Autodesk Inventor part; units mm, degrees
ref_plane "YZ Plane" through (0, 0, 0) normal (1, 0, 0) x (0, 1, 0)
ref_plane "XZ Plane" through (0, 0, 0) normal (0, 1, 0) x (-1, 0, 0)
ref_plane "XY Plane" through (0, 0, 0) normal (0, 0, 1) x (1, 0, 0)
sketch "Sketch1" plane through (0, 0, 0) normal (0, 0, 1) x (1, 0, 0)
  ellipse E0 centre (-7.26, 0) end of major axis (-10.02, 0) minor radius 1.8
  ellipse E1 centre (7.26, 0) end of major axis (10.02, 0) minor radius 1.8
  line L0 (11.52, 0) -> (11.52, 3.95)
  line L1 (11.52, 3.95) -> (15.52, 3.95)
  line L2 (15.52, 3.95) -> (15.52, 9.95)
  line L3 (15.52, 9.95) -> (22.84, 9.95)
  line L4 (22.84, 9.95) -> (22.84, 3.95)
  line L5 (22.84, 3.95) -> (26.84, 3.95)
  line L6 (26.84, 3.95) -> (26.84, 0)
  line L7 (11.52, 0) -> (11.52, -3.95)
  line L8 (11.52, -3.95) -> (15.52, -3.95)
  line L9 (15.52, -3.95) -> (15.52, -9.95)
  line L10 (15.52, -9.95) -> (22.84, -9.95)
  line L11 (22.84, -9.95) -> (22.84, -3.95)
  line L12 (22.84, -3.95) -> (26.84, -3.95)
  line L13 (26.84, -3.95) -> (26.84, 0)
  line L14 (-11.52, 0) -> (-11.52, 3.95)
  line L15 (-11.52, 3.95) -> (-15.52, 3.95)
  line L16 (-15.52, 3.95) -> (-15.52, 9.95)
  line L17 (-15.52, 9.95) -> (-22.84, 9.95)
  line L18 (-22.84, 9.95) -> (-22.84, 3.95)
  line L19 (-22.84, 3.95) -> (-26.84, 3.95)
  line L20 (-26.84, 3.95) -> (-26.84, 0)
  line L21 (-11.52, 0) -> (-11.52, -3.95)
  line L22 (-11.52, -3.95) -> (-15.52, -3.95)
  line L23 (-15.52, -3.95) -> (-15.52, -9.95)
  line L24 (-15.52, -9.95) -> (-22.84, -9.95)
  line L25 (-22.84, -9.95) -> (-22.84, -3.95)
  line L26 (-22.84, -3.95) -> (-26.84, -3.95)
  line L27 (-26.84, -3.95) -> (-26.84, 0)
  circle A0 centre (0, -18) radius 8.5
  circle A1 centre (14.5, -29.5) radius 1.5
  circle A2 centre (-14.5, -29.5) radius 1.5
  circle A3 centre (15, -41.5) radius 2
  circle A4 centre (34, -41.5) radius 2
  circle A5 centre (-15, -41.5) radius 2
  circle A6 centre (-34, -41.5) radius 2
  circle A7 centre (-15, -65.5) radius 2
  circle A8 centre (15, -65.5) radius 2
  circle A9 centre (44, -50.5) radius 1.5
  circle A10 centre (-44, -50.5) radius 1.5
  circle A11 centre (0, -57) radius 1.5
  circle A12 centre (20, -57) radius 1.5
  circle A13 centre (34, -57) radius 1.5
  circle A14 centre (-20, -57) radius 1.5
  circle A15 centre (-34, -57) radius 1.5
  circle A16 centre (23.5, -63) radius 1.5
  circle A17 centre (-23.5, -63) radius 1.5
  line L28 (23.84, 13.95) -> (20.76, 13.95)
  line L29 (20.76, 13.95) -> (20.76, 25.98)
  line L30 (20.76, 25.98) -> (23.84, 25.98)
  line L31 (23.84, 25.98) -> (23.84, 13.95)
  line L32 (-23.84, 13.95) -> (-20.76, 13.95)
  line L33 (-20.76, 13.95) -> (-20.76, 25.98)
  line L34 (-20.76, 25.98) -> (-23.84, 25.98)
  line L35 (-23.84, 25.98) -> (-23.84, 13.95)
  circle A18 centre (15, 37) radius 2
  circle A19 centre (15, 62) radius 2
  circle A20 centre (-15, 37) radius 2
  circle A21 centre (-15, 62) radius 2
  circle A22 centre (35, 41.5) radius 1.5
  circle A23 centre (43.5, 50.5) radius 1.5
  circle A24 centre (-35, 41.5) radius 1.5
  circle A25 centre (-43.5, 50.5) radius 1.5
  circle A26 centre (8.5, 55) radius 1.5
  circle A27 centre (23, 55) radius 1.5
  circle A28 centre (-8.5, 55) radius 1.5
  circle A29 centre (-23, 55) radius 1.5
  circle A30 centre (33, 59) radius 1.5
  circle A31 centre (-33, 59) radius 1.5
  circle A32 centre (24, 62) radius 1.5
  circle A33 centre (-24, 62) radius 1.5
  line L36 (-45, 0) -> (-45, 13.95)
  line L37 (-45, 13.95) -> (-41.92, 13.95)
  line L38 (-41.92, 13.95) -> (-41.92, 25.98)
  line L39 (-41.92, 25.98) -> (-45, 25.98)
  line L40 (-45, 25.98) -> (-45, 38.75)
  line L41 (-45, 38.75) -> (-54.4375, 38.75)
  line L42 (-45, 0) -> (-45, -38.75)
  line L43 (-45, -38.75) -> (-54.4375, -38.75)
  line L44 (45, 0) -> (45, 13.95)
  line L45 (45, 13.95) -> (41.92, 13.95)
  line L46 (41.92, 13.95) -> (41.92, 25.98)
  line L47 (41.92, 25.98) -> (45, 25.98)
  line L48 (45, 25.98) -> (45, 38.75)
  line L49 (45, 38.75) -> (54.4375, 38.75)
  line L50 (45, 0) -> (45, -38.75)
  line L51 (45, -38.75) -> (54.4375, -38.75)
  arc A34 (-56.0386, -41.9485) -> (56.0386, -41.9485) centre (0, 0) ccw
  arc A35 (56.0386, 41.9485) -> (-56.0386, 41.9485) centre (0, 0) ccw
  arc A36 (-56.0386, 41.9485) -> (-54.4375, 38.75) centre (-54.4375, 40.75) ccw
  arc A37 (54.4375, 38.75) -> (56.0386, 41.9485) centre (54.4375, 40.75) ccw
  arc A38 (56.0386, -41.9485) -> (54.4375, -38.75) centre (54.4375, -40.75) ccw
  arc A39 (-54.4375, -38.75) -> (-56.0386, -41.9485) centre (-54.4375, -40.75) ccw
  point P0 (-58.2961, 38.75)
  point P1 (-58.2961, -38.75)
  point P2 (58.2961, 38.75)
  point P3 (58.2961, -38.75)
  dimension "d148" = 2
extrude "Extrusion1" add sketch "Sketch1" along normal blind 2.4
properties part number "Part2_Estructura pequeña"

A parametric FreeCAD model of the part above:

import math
import FreeCAD as App
import Part
import Sketcher
from FreeCAD import Vector


def add_polygon(sketch, points):
    """Adds a closed chain of lines whose ends are joined by coincident constraints."""
    first, n = sketch.GeometryCount, len(points)
    for a, b in zip(points, points[1:] + points[:1]):
        sketch.addGeometry(Part.LineSegment(App.Vector(*a, 0), App.Vector(*b, 0)), False)
    for i in range(n):
        sketch.addConstraint(Sketcher.Constraint("Coincident", first + i, 2, first + (i + 1) % n, 1))

doc = App.newDocument("Part")
body = doc.addObject("PartDesign::Body", "Body")

# Sketch on XY plane
sketch1 = body.newObject("Sketcher::SketchObject", "Sketch")
sketch1.AttachmentSupport = (doc.getObject("XY_Plane"), [""])
sketch1.MapMode = "FlatFace"
sketch1.addGeometry(Part.LineSegment(Vector(-45, 13.95, 0), Vector(-45, -38.75, 0)), False)  # 0
sketch1.addGeometry(Part.LineSegment(Vector(-45, -38.75, 0), Vector(-54.4375, -38.75, 0)), False)  # 1
sketch1.addGeometry(Part.ArcOfCircle(Part.Circle(Vector(-54.4375, -40.75, 0), Vector(0, 0, 1), 2), math.radians(90), math.radians(216.816612)), False)  # 2
sketch1.addGeometry(Part.ArcOfCircle(Part.Circle(Vector(0, 0, 0), Vector(0, 0, 1), 70.00001), math.radians(-143.182782), math.radians(-36.817218)), False)  # 3
sketch1.addGeometry(Part.ArcOfCircle(Part.Circle(Vector(54.4375, -40.75, 0), Vector(0, 0, 1), 1.999981), math.radians(-36.816612), math.radians(90)), False)  # 4
sketch1.addGeometry(Part.LineSegment(Vector(54.4375, -38.75, 0), Vector(45, -38.75, 0)), False)  # 5
sketch1.addGeometry(Part.LineSegment(Vector(45, -38.75, 0), Vector(45, 13.95, 0)), False)  # 6
sketch1.addGeometry(Part.LineSegment(Vector(45, 13.95, 0), Vector(41.92, 13.95, 0)), False)  # 7
sketch1.addGeometry(Part.LineSegment(Vector(41.92, 13.95, 0), Vector(41.92, 25.98, 0)), False)  # 8
sketch1.addGeometry(Part.LineSegment(Vector(41.92, 25.98, 0), Vector(45, 25.98, 0)), False)  # 9
sketch1.addGeometry(Part.LineSegment(Vector(45, 25.98, 0), Vector(45, 38.75, 0)), False)  # 10
sketch1.addGeometry(Part.LineSegment(Vector(45, 38.75, 0), Vector(54.4375, 38.75, 0)), False)  # 11
sketch1.addGeometry(Part.ArcOfCircle(Part.Circle(Vector(54.4375, 40.75, 0), Vector(0, 0, 1), 2), math.radians(-90), math.radians(36.816612)), False)  # 12
sketch1.addGeometry(Part.ArcOfCircle(Part.Circle(Vector(0, 0, 0), Vector(0, 0, 1), 70.00001), math.radians(36.817218), math.radians(143.182782)), False)  # 13
sketch1.addGeometry(Part.ArcOfCircle(Part.Circle(Vector(-54.4375, 40.75, 0), Vector(0, 0, 1), 1.999981), math.radians(143.183388), math.radians(270)), False)  # 14
sketch1.addGeometry(Part.LineSegment(Vector(-54.4375, 38.75, 0), Vector(-45, 38.75, 0)), False)  # 15
sketch1.addGeometry(Part.LineSegment(Vector(-45, 38.75, 0), Vector(-45, 25.98, 0)), False)  # 16
sketch1.addGeometry(Part.LineSegment(Vector(-45, 25.98, 0), Vector(-41.92, 25.98, 0)), False)  # 17
sketch1.addGeometry(Part.LineSegment(Vector(-41.92, 25.98, 0), Vector(-41.92, 13.95, 0)), False)  # 18
sketch1.addGeometry(Part.LineSegment(Vector(-41.92, 13.95, 0), Vector(-45, 13.95, 0)), False)  # 19
sketch1.addGeometry(Part.Circle(Vector(-34, -57, 0), Vector(0, 0, 1), 1.5), False)  # 20
sketch1.addGeometry(Part.Circle(Vector(-44, -50.5, 0), Vector(0, 0, 1), 1.5), False)  # 21
sketch1.addGeometry(Part.Circle(Vector(-34, -41.5, 0), Vector(0, 0, 1), 2), False)  # 22
sketch1.addGeometry(Part.Circle(Vector(-23.5, -63, 0), Vector(0, 0, 1), 1.5), False)  # 23
sketch1.addGeometry(Part.Circle(Vector(-15, -65.5, 0), Vector(0, 0, 1), 2), False)  # 24
sketch1.addGeometry(Part.Circle(Vector(-20, -57, 0), Vector(0, 0, 1), 1.5), False)  # 25
sketch1.addGeometry(Part.Circle(Vector(-15, -41.5, 0), Vector(0, 0, 1), 2), False)  # 26
sketch1.addGeometry(Part.Circle(Vector(-14.5, -29.5, 0), Vector(0, 0, 1), 1.5), False)  # 27
sketch1.addGeometry(Part.Circle(Vector(0, -57, 0), Vector(0, 0, 1), 1.5), False)  # 28
sketch1.addGeometry(Part.Circle(Vector(15, -65.5, 0), Vector(0, 0, 1), 2), False)  # 29
sketch1.addGeometry(Part.Circle(Vector(23.5, -63, 0), Vector(0, 0, 1), 1.5), False)  # 30
sketch1.addGeometry(Part.Circle(Vector(20, -57, 0), Vector(0, 0, 1), 1.5), False)  # 31
sketch1.addGeometry(Part.Circle(Vector(15, -41.5, 0), Vector(0, 0, 1), 2), False)  # 32
sketch1.addGeometry(Part.Circle(Vector(34, -57, 0), Vector(0, 0, 1), 1.5), False)  # 33
sketch1.addGeometry(Part.Circle(Vector(34, -41.5, 0), Vector(0, 0, 1), 2), False)  # 34
sketch1.addGeometry(Part.Circle(Vector(44, -50.5, 0), Vector(0, 0, 1), 1.5), False)  # 35
sketch1.addGeometry(Part.Circle(Vector(0, -18, 0), Vector(0, 0, 1), 8.5), False)  # 36
sketch1.addGeometry(Part.Circle(Vector(14.5, -29.5, 0), Vector(0, 0, 1), 1.5), False)  # 37
add_polygon(sketch1, [(-11.52, 3.95), (-11.52, -3.95), (-15.52, -3.95), (-15.52, -9.95), (-22.84, -9.95), (-22.84, -3.95), (-26.84, -3.95), (-26.84, 3.95), (-22.84, 3.95), (-22.84, 9.95), (-15.52, 9.95), (-15.52, 3.95)])  # lines 38-49
sketch1.addGeometry(Part.Ellipse(Vector(-10.02, 0, 0), Vector(-7.26, -1.8, 0), Vector(-7.26, 0, 0)), False)  # 50
add_polygon(sketch1, [(-20.76, 13.95), (-23.84, 13.95), (-23.84, 25.98), (-20.76, 25.98)])  # lines 51-54
sketch1.addGeometry(Part.Circle(Vector(-43.5, 50.5, 0), Vector(0, 0, 1), 1.5), False)  # 55
sketch1.addGeometry(Part.Circle(Vector(-35, 41.5, 0), Vector(0, 0, 1), 1.5), False)  # 56
sketch1.addGeometry(Part.Circle(Vector(-33, 59, 0), Vector(0, 0, 1), 1.5), False)  # 57
sketch1.addGeometry(Part.Circle(Vector(-15, 37, 0), Vector(0, 0, 1), 2), False)  # 58
sketch1.addGeometry(Part.Circle(Vector(-23, 55, 0), Vector(0, 0, 1), 1.5), False)  # 59
sketch1.addGeometry(Part.Circle(Vector(-24, 62, 0), Vector(0, 0, 1), 1.5), False)  # 60
sketch1.addGeometry(Part.Circle(Vector(-15, 62, 0), Vector(0, 0, 1), 2), False)  # 61
sketch1.addGeometry(Part.Circle(Vector(-8.5, 55, 0), Vector(0, 0, 1), 1.5), False)  # 62
sketch1.addGeometry(Part.Ellipse(Vector(10.02, 0, 0), Vector(7.26, 1.8, 0), Vector(7.26, 0, 0)), False)  # 63
add_polygon(sketch1, [(11.52, -3.95), (11.52, 3.95), (15.52, 3.95), (15.52, 9.95), (22.84, 9.95), (22.84, 3.95), (26.84, 3.95), (26.84, -3.95), (22.84, -3.95), (22.84, -9.95), (15.52, -9.95), (15.52, -3.95)])  # lines 64-75
add_polygon(sketch1, [(23.84, 25.98), (23.84, 13.95), (20.76, 13.95), (20.76, 25.98)])  # lines 76-79
sketch1.addGeometry(Part.Circle(Vector(15, 37, 0), Vector(0, 0, 1), 2), False)  # 80
sketch1.addGeometry(Part.Circle(Vector(8.5, 55, 0), Vector(0, 0, 1), 1.5), False)  # 81
sketch1.addGeometry(Part.Circle(Vector(23, 55, 0), Vector(0, 0, 1), 1.5), False)  # 82
sketch1.addGeometry(Part.Circle(Vector(15, 62, 0), Vector(0, 0, 1), 2), False)  # 83
sketch1.addGeometry(Part.Circle(Vector(24, 62, 0), Vector(0, 0, 1), 1.5), False)  # 84
sketch1.addGeometry(Part.Circle(Vector(35, 41.5, 0), Vector(0, 0, 1), 1.5), False)  # 85
sketch1.addGeometry(Part.Circle(Vector(43.5, 50.5, 0), Vector(0, 0, 1), 1.5), False)  # 86
sketch1.addGeometry(Part.Circle(Vector(33, 59, 0), Vector(0, 0, 1), 1.5), False)  # 87
sketch1.addConstraint(Sketcher.Constraint("Block", 50))
sketch1.addConstraint(Sketcher.Constraint("Block", 63))
sketch1.addConstraint(Sketcher.Constraint("Coincident", 0, 2, 1, 1))
sketch1.addConstraint(Sketcher.Constraint("Tangent", 1, 2, 2, 1))
sketch1.addConstraint(Sketcher.Constraint("Tangent", 2, 2, 3, 1))
sketch1.addConstraint(Sketcher.Constraint("Tangent", 3, 2, 4, 1))
sketch1.addConstraint(Sketcher.Constraint("Tangent", 4, 2, 5, 1))
sketch1.addConstraint(Sketcher.Constraint("Coincident", 5, 2, 6, 1))
sketch1.addConstraint(Sketcher.Constraint("Coincident", 6, 2, 7, 1))
sketch1.addConstraint(Sketcher.Constraint("Coincident", 7, 2, 8, 1))
sketch1.addConstraint(Sketcher.Constraint("Coincident", 8, 2, 9, 1))
sketch1.addConstraint(Sketcher.Constraint("Coincident", 9, 2, 10, 1))
sketch1.addConstraint(Sketcher.Constraint("Coincident", 10, 2, 11, 1))
sketch1.addConstraint(Sketcher.Constraint("Tangent", 11, 2, 12, 1))
sketch1.addConstraint(Sketcher.Constraint("Tangent", 12, 2, 13, 1))
sketch1.addConstraint(Sketcher.Constraint("Tangent", 13, 2, 14, 1))
sketch1.addConstraint(Sketcher.Constraint("Tangent", 14, 2, 15, 1))
sketch1.addConstraint(Sketcher.Constraint("Coincident", 15, 2, 16, 1))
sketch1.addConstraint(Sketcher.Constraint("Coincident", 16, 2, 17, 1))
sketch1.addConstraint(Sketcher.Constraint("Coincident", 17, 2, 18, 1))
sketch1.addConstraint(Sketcher.Constraint("Coincident", 18, 2, 19, 1))
sketch1.addConstraint(Sketcher.Constraint("Coincident", 19, 2, 0, 1))
sketch1.addConstraint(Sketcher.Constraint("Vertical", 0))
sketch1.addConstraint(Sketcher.Constraint("Horizontal", 1))
sketch1.addConstraint(Sketcher.Constraint("Horizontal", 5))
sketch1.addConstraint(Sketcher.Constraint("Vertical", 6))
sketch1.addConstraint(Sketcher.Constraint("Horizontal", 7))
sketch1.addConstraint(Sketcher.Constraint("Vertical", 8))
sketch1.addConstraint(Sketcher.Constraint("Horizontal", 9))
sketch1.addConstraint(Sketcher.Constraint("Vertical", 10))
sketch1.addConstraint(Sketcher.Constraint("Horizontal", 11))
sketch1.addConstraint(Sketcher.Constraint("Horizontal", 15))
sketch1.addConstraint(Sketcher.Constraint("Vertical", 16))
sketch1.addConstraint(Sketcher.Constraint("Horizontal", 17))
sketch1.addConstraint(Sketcher.Constraint("Vertical", 18))
sketch1.addConstraint(Sketcher.Constraint("Horizontal", 19))
sketch1.addConstraint(Sketcher.Constraint("Vertical", 38))
sketch1.addConstraint(Sketcher.Constraint("Horizontal", 39))
sketch1.addConstraint(Sketcher.Constraint("Vertical", 40))
sketch1.addConstraint(Sketcher.Constraint("Horizontal", 41))
sketch1.addConstraint(Sketcher.Constraint("Vertical", 42))
sketch1.addConstraint(Sketcher.Constraint("Horizontal", 43))
sketch1.addConstraint(Sketcher.Constraint("Vertical", 44))
sketch1.addConstraint(Sketcher.Constraint("Horizontal", 45))
sketch1.addConstraint(Sketcher.Constraint("Vertical", 46))
sketch1.addConstraint(Sketcher.Constraint("Horizontal", 47))
sketch1.addConstraint(Sketcher.Constraint("Vertical", 48))
sketch1.addConstraint(Sketcher.Constraint("Horizontal", 49))
sketch1.addConstraint(Sketcher.Constraint("Horizontal", 51))
sketch1.addConstraint(Sketcher.Constraint("Vertical", 52))
sketch1.addConstraint(Sketcher.Constraint("Horizontal", 53))
sketch1.addConstraint(Sketcher.Constraint("Vertical", 54))
sketch1.addConstraint(Sketcher.Constraint("Vertical", 64))
sketch1.addConstraint(Sketcher.Constraint("Horizontal", 65))
sketch1.addConstraint(Sketcher.Constraint("Vertical", 66))
sketch1.addConstraint(Sketcher.Constraint("Horizontal", 67))
sketch1.addConstraint(Sketcher.Constraint("Vertical", 68))
sketch1.addConstraint(Sketcher.Constraint("Horizontal", 69))
sketch1.addConstraint(Sketcher.Constraint("Vertical", 70))
sketch1.addConstraint(Sketcher.Constraint("Horizontal", 71))
sketch1.addConstraint(Sketcher.Constraint("Vertical", 72))
sketch1.addConstraint(Sketcher.Constraint("Horizontal", 73))
sketch1.addConstraint(Sketcher.Constraint("Vertical", 74))
sketch1.addConstraint(Sketcher.Constraint("Horizontal", 75))
sketch1.addConstraint(Sketcher.Constraint("Vertical", 76))
sketch1.addConstraint(Sketcher.Constraint("Horizontal", 77))
sketch1.addConstraint(Sketcher.Constraint("Vertical", 78))
sketch1.addConstraint(Sketcher.Constraint("Horizontal", 79))
sketch1.addConstraint(Sketcher.Constraint("Coincident", 3, 3, -1, 1))
sketch1.addConstraint(Sketcher.Constraint("Coincident", 13, 3, -1, 1))
sketch1.addConstraint(Sketcher.Constraint("Equal", 2, 4))
sketch1.addConstraint(Sketcher.Constraint("Equal", 4, 12))
sketch1.addConstraint(Sketcher.Constraint("Equal", 3, 13))
sketch1.addConstraint(Sketcher.Constraint("Equal", 12, 14))
sketch1.addConstraint(Sketcher.Constraint("Equal", 20, 21))
sketch1.addConstraint(Sketcher.Constraint("Equal", 14, 22))
sketch1.addConstraint(Sketcher.Constraint("Equal", 21, 23))
sketch1.addConstraint(Sketcher.Constraint("Equal", 22, 24))
sketch1.addConstraint(Sketcher.Constraint("Equal", 23, 25))
sketch1.addConstraint(Sketcher.Constraint("Equal", 24, 26))
sketch1.addConstraint(Sketcher.Constraint("Equal", 25, 27))
sketch1.addConstraint(Sketcher.Constraint("Equal", 27, 28))
sketch1.addConstraint(Sketcher.Constraint("Equal", 26, 29))
sketch1.addConstraint(Sketcher.Constraint("Equal", 28, 30))
sketch1.addConstraint(Sketcher.Constraint("Equal", 30, 31))
sketch1.addConstraint(Sketcher.Constraint("Equal", 29, 32))
sketch1.addConstraint(Sketcher.Constraint("Equal", 31, 33))
sketch1.addConstraint(Sketcher.Constraint("Equal", 32, 34))
sketch1.addConstraint(Sketcher.Constraint("Equal", 33, 35))
sketch1.addConstraint(Sketcher.Constraint("Equal", 35, 37))
sketch1.addConstraint(Sketcher.Constraint("Equal", 37, 55))
sketch1.addConstraint(Sketcher.Constraint("Equal", 55, 56))
sketch1.addConstraint(Sketcher.Constraint("Equal", 56, 57))
sketch1.addConstraint(Sketcher.Constraint("Equal", 34, 58))
sketch1.addConstraint(Sketcher.Constraint("Equal", 57, 59))
sketch1.addConstraint(Sketcher.Constraint("Equal", 59, 60))
sketch1.addConstraint(Sketcher.Constraint("Equal", 58, 61))
sketch1.addConstraint(Sketcher.Constraint("Equal", 60, 62))
sketch1.addConstraint(Sketcher.Constraint("Equal", 61, 80))
sketch1.addConstraint(Sketcher.Constraint("Equal", 62, 81))
sketch1.addConstraint(Sketcher.Constraint("Equal", 81, 82))
sketch1.addConstraint(Sketcher.Constraint("Equal", 80, 83))
sketch1.addConstraint(Sketcher.Constraint("Equal", 82, 84))
sketch1.addConstraint(Sketcher.Constraint("Equal", 84, 85))
sketch1.addConstraint(Sketcher.Constraint("Equal", 85, 86))
sketch1.addConstraint(Sketcher.Constraint("Equal", 86, 87))
sketch1.addConstraint(Sketcher.Constraint("Symmetric", 0, 2, 10, 2, -1, 1))
sketch1.addConstraint(Sketcher.Constraint("Symmetric", 5, 2, 15, 2, -1, 1))
sketch1.addConstraint(Sketcher.Constraint("Symmetric", 38, 2, 64, 2, -1, 1))
sketch1.addConstraint(Sketcher.Constraint("Symmetric", 40, 2, 66, 2, -1, 1))
sketch1.addConstraint(Sketcher.Constraint("Symmetric", 42, 2, 68, 2, -1, 1))
sketch1.addConstraint(Sketcher.Constraint("Symmetric", 44, 2, 70, 2, -1, 1))
sketch1.addConstraint(Sketcher.Constraint("Symmetric", 46, 2, 72, 2, -1, 1))
sketch1.addConstraint(Sketcher.Constraint("Symmetric", 48, 2, 74, 2, -1, 1))
sketch1.addConstraint(Sketcher.Constraint("Symmetric", 24, 3, 29, 3, -2))
sketch1.addConstraint(Sketcher.Constraint("Symmetric", 23, 3, 30, 3, -2))
sketch1.addConstraint(Sketcher.Constraint("Symmetric", 25, 3, 31, 3, -2))
sketch1.addConstraint(Sketcher.Constraint("Symmetric", 26, 3, 32, 3, -2))
sketch1.addConstraint(Sketcher.Constraint("Symmetric", 20, 3, 33, 3, -2))
sketch1.addConstraint(Sketcher.Constraint("Symmetric", 22, 3, 34, 3, -2))
sketch1.addConstraint(Sketcher.Constraint("Symmetric", 21, 3, 35, 3, -2))
sketch1.addConstraint(Sketcher.Constraint("Symmetric", 27, 3, 37, 3, -2))
sketch1.addConstraint(Sketcher.Constraint("Symmetric", 58, 3, 80, 3, -2))
sketch1.addConstraint(Sketcher.Constraint("Symmetric", 62, 3, 81, 3, -2))
sketch1.addConstraint(Sketcher.Constraint("Symmetric", 59, 3, 82, 3, -2))
sketch1.addConstraint(Sketcher.Constraint("Symmetric", 61, 3, 83, 3, -2))
sketch1.addConstraint(Sketcher.Constraint("Symmetric", 60, 3, 84, 3, -2))
sketch1.addConstraint(Sketcher.Constraint("Symmetric", 56, 3, 85, 3, -2))
sketch1.addConstraint(Sketcher.Constraint("Symmetric", 55, 3, 86, 3, -2))
sketch1.addConstraint(Sketcher.Constraint("Symmetric", 57, 3, 87, 3, -2))
sketch1.addConstraint(Sketcher.Constraint("Symmetric", 0, 2, 5, 2, -2))
sketch1.addConstraint(Sketcher.Constraint("Symmetric", 8, 2, 17, 2, -2))
sketch1.addConstraint(Sketcher.Constraint("Symmetric", 48, 2, 65, 2, -2))
sketch1.addConstraint(Sketcher.Constraint("Symmetric", 46, 2, 67, 2, -2))
sketch1.addConstraint(Sketcher.Constraint("Symmetric", 51, 2, 76, 2, -2))
sketch1.addConstraint(Sketcher.Constraint("Symmetric", 53, 2, 78, 2, -2))
sketch1.addConstraint(Sketcher.Constraint("PointOnObject", 28, 3, -2))
sketch1.addConstraint(Sketcher.Constraint("PointOnObject", 36, 3, -2))
sketch1.addConstraint(Sketcher.Constraint("Horizontal", 20, 3, 25, 3))
sketch1.addConstraint(Sketcher.Constraint("Horizontal", 22, 3, 26, 3))
sketch1.addConstraint(Sketcher.Constraint("Horizontal", 25, 3, 28, 3))
sketch1.addConstraint(Sketcher.Constraint("Horizontal", 60, 3, 61, 3))
sketch1.addConstraint(Sketcher.Constraint("Horizontal", 59, 3, 62, 3))
sketch1.addConstraint(Sketcher.Constraint("Horizontal", 7, 2, 18, 2))
sketch1.addConstraint(Sketcher.Constraint("Horizontal", 39, 2, 42, 2))
sketch1.addConstraint(Sketcher.Constraint("Horizontal", 45, 2, 48, 2))
sketch1.addConstraint(Sketcher.Constraint("Horizontal", 19, 2, 51, 2))
sketch1.addConstraint(Sketcher.Constraint("Horizontal", 17, 2, 52, 2))
sketch1.addConstraint(Sketcher.Constraint("Vertical", 20, 3, 22, 3))
sketch1.addConstraint(Sketcher.Constraint("Vertical", 24, 3, 26, 3))
sketch1.addConstraint(Sketcher.Constraint("Vertical", 26, 3, 58, 3))
sketch1.addConstraint(Sketcher.Constraint("Vertical", 58, 3, 61, 3))
sketch1.addConstraint(Sketcher.Constraint("Equal", 39, 43))
sketch1.addConstraint(Sketcher.Constraint("Equal", 19, 51))
sketch1.addConstraint(Sketcher.Constraint("Diameter", 22, 4.0))
sketch1.addConstraint(Sketcher.Constraint("Diameter", 20, 3.0))
sketch1.addConstraint(Sketcher.Constraint("Diameter", 36, 17.0))
sketch1.addConstraint(Sketcher.Constraint("Radius", 3, 70.0))
sketch1.addConstraint(Sketcher.Constraint("DistanceX", 39, 2, 39, 1, 4.0))
sketch1.addConstraint(Sketcher.Constraint("DistanceY", 40, 2, 40, 1, 6.0))
sketch1.addConstraint(Sketcher.Constraint("DistanceY", 0, 2, 0, 1, 52.7))
sketch1.addConstraint(Sketcher.Constraint("DistanceY", 38, 2, 38, 1, 7.9))
sketch1.addConstraint(Sketcher.Constraint("DistanceX", 20, 3, -1, 1, 34.0))
sketch1.addConstraint(Sketcher.Constraint("DistanceY", 20, 3, -1, 1, 57.0))
sketch1.addConstraint(Sketcher.Constraint("DistanceX", 21, 3, -1, 1, 44.0))
sketch1.addConstraint(Sketcher.Constraint("DistanceY", 23, 3, -1, 1, 63.0))
sketch1.addConstraint(Sketcher.Constraint("DistanceX", 24, 3, -1, 1, 15.0))
sketch1.addConstraint(Sketcher.Constraint("DistanceX", 25, 3, -1, 1, 20.0))
sketch1.addConstraint(Sketcher.Constraint("DistanceY", 36, 3, -1, 1, 18.0))
sketch1.addConstraint(Sketcher.Constraint("DistanceX", 56, 3, -1, 1, 35.0))
sketch1.addConstraint(Sketcher.Constraint("DistanceX", 57, 3, -1, 1, 33.0))
sketch1.addConstraint(Sketcher.Constraint("DistanceY", -1, 1, 57, 3, 59.0))
sketch1.addConstraint(Sketcher.Constraint("DistanceY", -1, 1, 58, 3, 37.0))
sketch1.addConstraint(Sketcher.Constraint("DistanceX", 59, 3, -1, 1, 23.0))
sketch1.addConstraint(Sketcher.Constraint("DistanceY", -1, 1, 59, 3, 55.0))
sketch1.addConstraint(Sketcher.Constraint("DistanceX", 60, 3, -1, 1, 24.0))
sketch1.addConstraint(Sketcher.Constraint("DistanceY", -1, 1, 60, 3, 62.0))
sketch1.addConstraint(Sketcher.Constraint("DistanceX", 0, 2, -1, 1, 45.0))
sketch1.addConstraint(Sketcher.Constraint("DistanceX", 7, 2, 7, 1, 3.08))
sketch1.addConstraint(Sketcher.Constraint("DistanceX", 41, 2, 41, 1, 7.32))
sketch1.addConstraint(Sketcher.Constraint("DistanceY", 8, 1, 8, 2, 12.03))
sketch1.addConstraint(Sketcher.Constraint("DistanceY", 10, 1, 10, 2, 12.77))
sketch1.addConstraint(Sketcher.Constraint("DistanceY", 21, 3, -1, 1, 50.5))
sketch1.addConstraint(Sketcher.Constraint("DistanceY", 22, 3, -1, 1, 41.5))
sketch1.addConstraint(Sketcher.Constraint("DistanceX", 23, 3, -1, 1, 23.5))
sketch1.addConstraint(Sketcher.Constraint("DistanceY", 24, 3, -1, 1, 65.5))
sketch1.addConstraint(Sketcher.Constraint("DistanceX", 27, 3, -1, 1, 14.5))
sketch1.addConstraint(Sketcher.Constraint("DistanceY", 27, 3, -1, 1, 29.5))
sketch1.addConstraint(Sketcher.Constraint("DistanceX", 55, 3, -1, 1, 43.5))
sketch1.addConstraint(Sketcher.Constraint("DistanceY", -1, 1, 55, 3, 50.5))
sketch1.addConstraint(Sketcher.Constraint("DistanceY", -1, 1, 56, 3, 41.5))
sketch1.addConstraint(Sketcher.Constraint("DistanceX", 62, 3, -1, 1, 8.5))
sketch1.addConstraint(Sketcher.Constraint("DistanceX", 38, 2, -1, 1, 11.52))
sketch1.addConstraint(Sketcher.Constraint("DistanceX", 51, 2, -1, 1, 23.84))
pad1 = body.newObject("PartDesign::Pad", "Pad")
pad1.Profile = sketch1
pad1.Length = 2.4

doc.recompute()
